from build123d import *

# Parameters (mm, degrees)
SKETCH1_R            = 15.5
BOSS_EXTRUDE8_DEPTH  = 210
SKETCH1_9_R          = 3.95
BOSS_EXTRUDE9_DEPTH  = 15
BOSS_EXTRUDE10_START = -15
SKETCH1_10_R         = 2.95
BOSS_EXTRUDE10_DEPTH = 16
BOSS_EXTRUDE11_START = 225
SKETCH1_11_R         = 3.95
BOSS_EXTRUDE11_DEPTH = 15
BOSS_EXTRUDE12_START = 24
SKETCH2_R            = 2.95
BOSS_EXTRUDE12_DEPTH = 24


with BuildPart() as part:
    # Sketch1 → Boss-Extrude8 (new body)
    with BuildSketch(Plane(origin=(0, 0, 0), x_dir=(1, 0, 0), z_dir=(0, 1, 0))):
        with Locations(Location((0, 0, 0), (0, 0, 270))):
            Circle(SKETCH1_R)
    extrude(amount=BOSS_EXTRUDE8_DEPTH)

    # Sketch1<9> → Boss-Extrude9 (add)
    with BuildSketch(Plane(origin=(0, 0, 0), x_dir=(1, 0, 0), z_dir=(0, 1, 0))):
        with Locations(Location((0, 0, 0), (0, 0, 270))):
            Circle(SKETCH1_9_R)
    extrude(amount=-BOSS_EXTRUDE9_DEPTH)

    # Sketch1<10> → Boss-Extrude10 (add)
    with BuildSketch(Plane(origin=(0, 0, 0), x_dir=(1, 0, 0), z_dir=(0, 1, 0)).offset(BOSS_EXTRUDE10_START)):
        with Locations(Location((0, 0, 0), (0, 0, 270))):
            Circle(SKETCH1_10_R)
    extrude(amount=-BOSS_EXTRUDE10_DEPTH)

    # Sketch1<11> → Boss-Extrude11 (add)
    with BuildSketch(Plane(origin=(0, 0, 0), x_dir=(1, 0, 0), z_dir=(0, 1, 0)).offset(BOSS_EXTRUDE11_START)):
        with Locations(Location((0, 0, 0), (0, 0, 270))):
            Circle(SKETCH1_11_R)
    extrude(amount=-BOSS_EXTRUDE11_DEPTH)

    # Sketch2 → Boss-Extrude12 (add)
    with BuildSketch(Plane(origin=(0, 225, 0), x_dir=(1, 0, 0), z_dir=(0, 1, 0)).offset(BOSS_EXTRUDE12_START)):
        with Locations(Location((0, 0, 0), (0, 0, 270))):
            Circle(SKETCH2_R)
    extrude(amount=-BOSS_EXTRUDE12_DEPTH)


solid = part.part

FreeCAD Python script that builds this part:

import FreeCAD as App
import Part
import Sketcher

V = App.Vector

doc = App.newDocument("Part")
body = doc.addObject("PartDesign::Body", "Body")

# Sketch on XZ plane
sketch1 = body.newObject("Sketcher::SketchObject", "Sketch")
sketch1.AttachmentSupport = (doc.getObject("XZ_Plane"), [""])
sketch1.MapMode = "FlatFace"
sketch1.addGeometry(Part.Circle(V(0, 0, 0), V(0, 0, 1), 15.5), False)
sketch1.addConstraint(Sketcher.Constraint("Coincident", 0, 3, -1, 1))
sketch1.addConstraint(Sketcher.Constraint("Diameter", 0, 31.0))
pad1 = body.newObject("PartDesign::Pad", "Pad")
pad1.Profile = sketch1
pad1.Length = 210
pad1.Reversed = True

# Sketch on XZ plane
sketch2 = body.newObject("Sketcher::SketchObject", "Sketch001")
sketch2.AttachmentSupport = (doc.getObject("XZ_Plane"), [""])
sketch2.MapMode = "FlatFace"
sketch2.addGeometry(Part.Circle(V(0, 0, 0), V(0, 0, 1), 3.95), False)
sketch2.addConstraint(Sketcher.Constraint("Coincident", 0, 3, -1, 1))
sketch2.addConstraint(Sketcher.Constraint("Diameter", 0, 7.9))
pad2 = body.newObject("PartDesign::Pad", "Pad001")
pad2.Profile = sketch2
pad2.Length = 15

# Sketch on XZ plane
sketch3 = body.newObject("Sketcher::SketchObject", "Sketch002")
sketch3.AttachmentSupport = (doc.getObject("XZ_Plane"), [""])
sketch3.MapMode = "FlatFace"
sketch3.AttachmentOffset = App.Placement(V(0, 0, 15), App.Rotation())
sketch3.addGeometry(Part.Circle(V(0, 0, 0), V(0, 0, 1), 2.95), False)
sketch3.addConstraint(Sketcher.Constraint("Coincident", 0, 3, -1, 1))
sketch3.addConstraint(Sketcher.Constraint("Diameter", 0, 5.9))
pad3 = body.newObject("PartDesign::Pad", "Pad002")
pad3.Profile = sketch3
pad3.Length = 16

# Sketch on XZ plane
sketch4 = body.newObject("Sketcher::SketchObject", "Sketch003")
sketch4.AttachmentSupport = (doc.getObject("XZ_Plane"), [""])
sketch4.MapMode = "FlatFace"
sketch4.AttachmentOffset = App.Placement(V(0, 0, -225), App.Rotation())
sketch4.addGeometry(Part.Circle(V(0, 0, 0), V(0, 0, 1), 3.95), False)
sketch4.addConstraint(Sketcher.Constraint("Coincident", 0, 3, -1, 1))
sketch4.addConstraint(Sketcher.Constraint("Diameter", 0, 7.9))
pad4 = body.newObject("PartDesign::Pad", "Pad003")
pad4.Profile = sketch4
pad4.Length = 15

# Sketch on XZ plane
sketch5 = body.newObject("Sketcher::SketchObject", "Sketch004")
sketch5.AttachmentSupport = (doc.getObject("XZ_Plane"), [""])
sketch5.MapMode = "FlatFace"
sketch5.AttachmentOffset = App.Placement(V(0, 0, -249), App.Rotation())
sketch5.addGeometry(Part.Circle(V(0, 0, 0), V(0, 0, 1), 2.95), False)
sketch5.addConstraint(Sketcher.Constraint("Coincident", 0, 3, -1, 1))
sketch5.addConstraint(Sketcher.Constraint("Diameter", 0, 5.9))
pad5 = body.newObject("PartDesign::Pad", "Pad004")
pad5.Profile = sketch5
pad5.Length = 24

doc.recompute()
